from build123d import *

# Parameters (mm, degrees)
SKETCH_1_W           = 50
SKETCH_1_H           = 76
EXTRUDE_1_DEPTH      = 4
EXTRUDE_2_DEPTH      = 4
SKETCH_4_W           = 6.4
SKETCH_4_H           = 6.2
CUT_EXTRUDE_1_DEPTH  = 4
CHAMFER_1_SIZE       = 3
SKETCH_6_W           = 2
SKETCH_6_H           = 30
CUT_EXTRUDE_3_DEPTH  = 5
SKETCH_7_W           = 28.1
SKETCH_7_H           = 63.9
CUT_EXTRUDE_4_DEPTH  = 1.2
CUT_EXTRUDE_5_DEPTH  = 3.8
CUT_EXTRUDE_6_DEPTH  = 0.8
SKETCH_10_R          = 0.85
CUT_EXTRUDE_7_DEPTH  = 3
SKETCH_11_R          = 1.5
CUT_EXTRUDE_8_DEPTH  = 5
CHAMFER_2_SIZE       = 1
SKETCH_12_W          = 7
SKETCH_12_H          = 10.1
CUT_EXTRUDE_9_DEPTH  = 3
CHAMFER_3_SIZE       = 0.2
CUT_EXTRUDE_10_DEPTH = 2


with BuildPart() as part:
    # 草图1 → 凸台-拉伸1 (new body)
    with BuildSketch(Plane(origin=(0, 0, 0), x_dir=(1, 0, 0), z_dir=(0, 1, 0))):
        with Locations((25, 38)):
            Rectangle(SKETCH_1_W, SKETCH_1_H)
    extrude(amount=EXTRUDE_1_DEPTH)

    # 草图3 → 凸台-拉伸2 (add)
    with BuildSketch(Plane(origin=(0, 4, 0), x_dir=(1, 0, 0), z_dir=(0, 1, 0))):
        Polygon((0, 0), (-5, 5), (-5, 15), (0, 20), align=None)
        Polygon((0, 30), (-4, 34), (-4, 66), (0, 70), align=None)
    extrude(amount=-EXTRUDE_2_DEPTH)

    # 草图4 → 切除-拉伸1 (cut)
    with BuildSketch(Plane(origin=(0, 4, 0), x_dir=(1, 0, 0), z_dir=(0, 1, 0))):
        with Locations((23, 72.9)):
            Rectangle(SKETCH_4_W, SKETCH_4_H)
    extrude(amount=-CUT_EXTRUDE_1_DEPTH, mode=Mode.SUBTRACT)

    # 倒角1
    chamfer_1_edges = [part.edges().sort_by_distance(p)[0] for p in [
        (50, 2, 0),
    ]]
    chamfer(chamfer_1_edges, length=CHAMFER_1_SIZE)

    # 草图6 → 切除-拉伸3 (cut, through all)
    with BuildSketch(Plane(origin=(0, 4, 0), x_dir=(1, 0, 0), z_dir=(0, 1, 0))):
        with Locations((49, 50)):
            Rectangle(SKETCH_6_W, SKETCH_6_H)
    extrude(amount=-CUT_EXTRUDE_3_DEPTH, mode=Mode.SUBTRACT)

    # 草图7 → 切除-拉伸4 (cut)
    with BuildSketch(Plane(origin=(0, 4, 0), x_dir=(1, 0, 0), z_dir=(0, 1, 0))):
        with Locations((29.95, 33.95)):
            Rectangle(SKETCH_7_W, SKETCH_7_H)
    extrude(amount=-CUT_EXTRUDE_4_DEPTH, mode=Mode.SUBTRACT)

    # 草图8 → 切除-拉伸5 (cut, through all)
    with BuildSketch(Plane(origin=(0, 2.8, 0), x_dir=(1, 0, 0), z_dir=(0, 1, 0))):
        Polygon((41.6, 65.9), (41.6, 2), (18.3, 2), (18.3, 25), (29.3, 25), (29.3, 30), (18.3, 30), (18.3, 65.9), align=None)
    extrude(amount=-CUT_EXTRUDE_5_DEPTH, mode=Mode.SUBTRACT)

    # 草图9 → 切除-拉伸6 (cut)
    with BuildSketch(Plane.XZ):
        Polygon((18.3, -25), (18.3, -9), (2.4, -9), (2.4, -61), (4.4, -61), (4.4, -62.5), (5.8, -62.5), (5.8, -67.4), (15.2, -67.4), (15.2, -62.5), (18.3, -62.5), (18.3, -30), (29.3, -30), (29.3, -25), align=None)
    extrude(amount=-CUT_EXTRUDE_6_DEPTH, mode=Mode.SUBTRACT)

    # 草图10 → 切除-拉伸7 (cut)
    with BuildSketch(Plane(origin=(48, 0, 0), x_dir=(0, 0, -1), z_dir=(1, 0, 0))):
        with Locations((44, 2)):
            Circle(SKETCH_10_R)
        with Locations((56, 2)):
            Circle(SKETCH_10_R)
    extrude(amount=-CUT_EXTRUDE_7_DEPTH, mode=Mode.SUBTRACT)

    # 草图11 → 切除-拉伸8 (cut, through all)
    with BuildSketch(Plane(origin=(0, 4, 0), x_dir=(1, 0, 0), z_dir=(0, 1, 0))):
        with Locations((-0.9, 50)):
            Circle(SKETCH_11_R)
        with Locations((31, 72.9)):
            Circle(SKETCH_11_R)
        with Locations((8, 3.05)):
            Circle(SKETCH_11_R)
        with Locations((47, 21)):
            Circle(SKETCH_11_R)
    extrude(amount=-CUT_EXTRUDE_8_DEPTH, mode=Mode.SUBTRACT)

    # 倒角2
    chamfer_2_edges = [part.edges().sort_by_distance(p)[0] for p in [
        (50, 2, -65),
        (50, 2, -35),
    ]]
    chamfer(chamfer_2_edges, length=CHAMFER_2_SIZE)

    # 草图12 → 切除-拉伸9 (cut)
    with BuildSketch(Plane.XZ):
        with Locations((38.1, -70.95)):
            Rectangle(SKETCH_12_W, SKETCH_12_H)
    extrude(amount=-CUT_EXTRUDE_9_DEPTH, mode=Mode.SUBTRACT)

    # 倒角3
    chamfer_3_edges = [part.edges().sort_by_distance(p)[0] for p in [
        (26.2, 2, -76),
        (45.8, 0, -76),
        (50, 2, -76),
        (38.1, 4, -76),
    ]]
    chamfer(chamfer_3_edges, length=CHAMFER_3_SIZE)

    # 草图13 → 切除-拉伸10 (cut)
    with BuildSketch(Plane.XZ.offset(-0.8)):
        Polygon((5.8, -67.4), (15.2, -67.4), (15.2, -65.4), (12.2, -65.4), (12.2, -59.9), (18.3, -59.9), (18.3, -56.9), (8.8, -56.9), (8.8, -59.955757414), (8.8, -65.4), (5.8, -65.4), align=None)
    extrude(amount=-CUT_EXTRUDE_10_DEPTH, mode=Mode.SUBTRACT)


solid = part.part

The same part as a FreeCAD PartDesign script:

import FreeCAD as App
import Part
import Sketcher
from FreeCAD import Vector
Q = App.Units.Quantity


def edges_at(feature, points):
    """Names of the edges that pass closest to the given points."""
    edges = feature.Shape.Edges
    near = lambda p: min(range(len(edges)), key=lambda i: edges[i].distToShape(Part.Vertex(*p))[0])
    return sorted({f"Edge{near(p) + 1}" for p in points})


def add_polygon(sketch, points):
    """Adds a closed chain of lines whose ends are joined by coincident constraints."""
    first, n = sketch.GeometryCount, len(points)
    for a, b in zip(points, points[1:] + points[:1]):
        sketch.addGeometry(Part.LineSegment(App.Vector(*a, 0), App.Vector(*b, 0)), False)
    for i in range(n):
        sketch.addConstraint(Sketcher.Constraint("Coincident", first + i, 2, first + (i + 1) % n, 1))

doc = App.newDocument("Part")
body = doc.addObject("PartDesign::Body", "Body")

# Sketch on XZ plane
sketch1 = body.newObject("Sketcher::SketchObject", "Sketch")
sketch1.AttachmentSupport = (doc.getObject("XZ_Plane"), [""])
sketch1.MapMode = "FlatFace"
add_polygon(sketch1, [(0, -76), (0, 0), (50, 0), (50, -76)])  # lines 0-3
sketch1.addConstraint([
    Sketcher.Constraint("Vertical", 0),
    Sketcher.Constraint("Horizontal", 1),
    Sketcher.Constraint("Vertical", 2),
    Sketcher.Constraint("Horizontal", 3),
    Sketcher.Constraint("Coincident", 0, 2, -1, 1),
    Sketcher.Constraint("DistanceX", 1, 1, 1, 2, Q("50 mm")),
    Sketcher.Constraint("DistanceY", 0, 1, 0, 2, Q("76 mm")),
])
pad1 = body.newObject("PartDesign::Pad", "Pad")
pad1.Profile = sketch1
pad1.Length = 4
pad1.Reversed = True

# Sketch on XZ plane
sketch2 = body.newObject("Sketcher::SketchObject", "Sketch001")
sketch2.AttachmentSupport = (doc.getObject("XZ_Plane"), [""])
sketch2.MapMode = "FlatFace"
sketch2.AttachmentOffset = App.Placement(Vector(0, 0, -4), App.Rotation())
add_polygon(sketch2, [(-5, -5), (0, 0), (0, -20), (-5, -15)])  # lines 0-3
add_polygon(sketch2, [(-4, -34), (0, -30), (0, -70), (-4, -66)])  # lines 4-7
sketch2.addConstraint([
    Sketcher.Constraint("Vertical", 1),
    Sketcher.Constraint("Vertical", 3),
    Sketcher.Constraint("Vertical", 5),
    Sketcher.Constraint("Vertical", 7),
    Sketcher.Constraint("Coincident", 0, 2, -1, 1),
    Sketcher.Constraint("PointOnObject", 4, 2, -2),
    Sketcher.Constraint("Perpendicular", 0, 2),
    Sketcher.Constraint("Perpendicular", 2, 4),
    Sketcher.Constraint("Perpendicular", 4, 6),
    Sketcher.Constraint("Equal", 0, 2),
    Sketcher.Constraint("DistanceY", 1, 2, 1, 1, Q("20 mm")),
    Sketcher.Constraint("DistanceY", 3, 1, 3, 2, Q("10 mm")),
    Sketcher.Constraint("DistanceY", 5, 2, 5, 1, Q("40 mm")),
    Sketcher.Constraint("DistanceY", 7, 1, 7, 2, Q("32 mm")),
    Sketcher.Constraint("DistanceY", 4, 2, -1, 1, Q("30 mm")),
])
pad2 = body.newObject("PartDesign::Pad", "Pad001")
pad2.Profile = sketch2
pad2.Length = 4

# Sketch on XZ plane
sketch3 = body.newObject("Sketcher::SketchObject", "Sketch002")
sketch3.AttachmentSupport = (doc.getObject("XZ_Plane"), [""])
sketch3.MapMode = "FlatFace"
sketch3.AttachmentOffset = App.Placement(Vector(0, 0, -4), App.Rotation())
add_polygon(sketch3, [(20, -76), (20, -70), (26, -70), (26, -76)])  # lines 0-3
sketch3.addConstraint([
    Sketcher.Constraint("Vertical", 0),
    Sketcher.Constraint("Horizontal", 1),
    Sketcher.Constraint("Vertical", 2),
    Sketcher.Constraint("Horizontal", 3),
    Sketcher.Constraint("DistanceX", 1, 1, 1, 2, Q("6.4 mm")),
    Sketcher.Constraint("DistanceY", 0, 1, 0, 2, Q("6.2 mm")),
    Sketcher.Constraint("DistanceY", 2, 2, -1, 1, Q("76 mm")),
    Sketcher.Constraint("DistanceX", -1, 1, 0, 2, Q("19.8 mm")),
])
pocket1 = body.newObject("PartDesign::Pocket", "Pocket")
pocket1.Profile = sketch3
pocket1.Length = 4
pocket1.Reversed = True
doc.recompute()

chamfer = body.newObject("PartDesign::Chamfer", "Chamfer")
chamfer.Base = (pocket1, edges_at(pocket1, [(50, 2, 0)]))
chamfer.Size = 3

# Sketch on XZ plane
sketch4 = body.newObject("Sketcher::SketchObject", "Sketch003")
sketch4.AttachmentSupport = (doc.getObject("XZ_Plane"), [""])
sketch4.MapMode = "FlatFace"
sketch4.AttachmentOffset = App.Placement(Vector(0, 0, -4), App.Rotation())
add_polygon(sketch4, [(48, -65), (48, -35), (50, -35), (50, -65)])  # lines 0-3
sketch4.addConstraint([
    Sketcher.Constraint("Vertical", 0),
    Sketcher.Constraint("Horizontal", 1),
    Sketcher.Constraint("Vertical", 2),
    Sketcher.Constraint("Horizontal", 3),
    Sketcher.Constraint("DistanceX", 1, 1, 1, 2, Q("2 mm")),
    Sketcher.Constraint("DistanceY", 0, 1, 0, 2, Q("30 mm")),
    Sketcher.Constraint("DistanceX", -1, 1, 0, 2, Q("48 mm")),
    Sketcher.Constraint("DistanceY", 0, 2, -1, 1, Q("35 mm")),
])
pocket2 = body.newObject("PartDesign::Pocket", "Pocket001")
pocket2.Profile = sketch4
pocket2.Type = "ThroughAll"
pocket2.Reversed = True

# Sketch on XZ plane
sketch5 = body.newObject("Sketcher::SketchObject", "Sketch004")
sketch5.AttachmentSupport = (doc.getObject("XZ_Plane"), [""])
sketch5.MapMode = "FlatFace"
sketch5.AttachmentOffset = App.Placement(Vector(0, 0, -4), App.Rotation())
add_polygon(sketch5, [(16, -66), (16, -2), (44, -2), (44, -66)])  # lines 0-3
sketch5.addConstraint([
    Sketcher.Constraint("Vertical", 0),
    Sketcher.Constraint("Horizontal", 1),
    Sketcher.Constraint("Vertical", 2),
    Sketcher.Constraint("Horizontal", 3),
    Sketcher.Constraint("DistanceX", 1, 1, 1, 2, Q("28.1 mm")),
    Sketcher.Constraint("DistanceY", 0, 1, 0, 2, Q("63.9 mm")),
    Sketcher.Constraint("DistanceY", 0, 2, -1, 1, Q("2 mm")),
    Sketcher.Constraint("DistanceX", -1, 1, 1, 2, Q("44 mm")),
])
pocket3 = body.newObject("PartDesign::Pocket", "Pocket002")
pocket3.Profile = sketch5
pocket3.Length = 1.2
pocket3.Reversed = True

# Sketch on XZ plane
sketch6 = body.newObject("Sketcher::SketchObject", "Sketch005")
sketch6.AttachmentSupport = (doc.getObject("XZ_Plane"), [""])
sketch6.MapMode = "FlatFace"
sketch6.AttachmentOffset = App.Placement(Vector(0, 0, -2.8), App.Rotation())
add_polygon(sketch6, [(42, -2), (42, -66), (18, -66), (18, -30), (29, -30), (29, -25), (18, -25), (18, -2)])  # lines 0-7
sketch6.addConstraint([
    Sketcher.Constraint("Vertical", 0),
    Sketcher.Constraint("Horizontal", 1),
    Sketcher.Constraint("Vertical", 2),
    Sketcher.Constraint("Horizontal", 3),
    Sketcher.Constraint("Vertical", 4),
    Sketcher.Constraint("Horizontal", 5),
    Sketcher.Constraint("Vertical", 6),
    Sketcher.Constraint("Horizontal", 7),
    Sketcher.Constraint("Vertical", 2, 2, 5, 2),
    Sketcher.Constraint("DistanceX", 3, 1, 3, 2, Q("11 mm")),
    Sketcher.Constraint("DistanceY", 4, 1, 4, 2, Q("5 mm")),
    Sketcher.Constraint("DistanceY", 6, 1, 6, 2, Q("23 mm")),
    Sketcher.Constraint("DistanceX", 1, 2, 1, 1, Q("23.3 mm")),
    Sketcher.Constraint("DistanceY", 0, 2, 0, 1, Q("63.9 mm")),
    Sketcher.Constraint("DistanceY", 2, 2, -1, 1, Q("30 mm")),
    Sketcher.Constraint("DistanceX", -1, 1, 0, 2, Q("41.6 mm")),
])
pocket4 = body.newObject("PartDesign::Pocket", "Pocket003")
pocket4.Profile = sketch6
pocket4.Type = "ThroughAll"
pocket4.Reversed = True

# Sketch on XZ plane
sketch7 = body.newObject("Sketcher::SketchObject", "Sketch006")
sketch7.AttachmentSupport = (doc.getObject("XZ_Plane"), [""])
sketch7.MapMode = "FlatFace"
add_polygon(sketch7, [(18.3, -25), (18.3, -9), (2.4, -9), (2.4, -61), (4.4, -61), (4.4, -62.5), (5.8, -62.5), (5.8, -67.4), (15.2, -67.4), (15.2, -62.5), (18.3, -62.5), (18.3, -30), (29.3, -30), (29.3, -25)])  # lines 0-13
sketch7.addConstraint([
    Sketcher.Constraint("Vertical", 0),
    Sketcher.Constraint("Horizontal", 1),
    Sketcher.Constraint("Vertical", 2),
    Sketcher.Constraint("Horizontal", 3),
    Sketcher.Constraint("Vertical", 4),
    Sketcher.Constraint("Horizontal", 5),
    Sketcher.Constraint("Vertical", 6),
    Sketcher.Constraint("Horizontal", 7),
    Sketcher.Constraint("Vertical", 8),
    Sketcher.Constraint("Horizontal", 9),
    Sketcher.Constraint("Vertical", 10),
    Sketcher.Constraint("Horizontal", 11),
    Sketcher.Constraint("Vertical", 12),
    Sketcher.Constraint("Horizontal", 13),
    Sketcher.Constraint("Horizontal", 5, 2, 8, 2),
    Sketcher.Constraint("Vertical", 0, 2, 9, 2),
    Sketcher.Constraint("DistanceX", 3, 1, 3, 2, Q("2 mm")),
    Sketcher.Constraint("DistanceX", 11, 1, 11, 2, Q("11 mm")),
    Sketcher.Constraint("DistanceY", 0, 1, 0, 2, Q("16 mm")),
    Sketcher.Constraint("DistanceY", 2, 2, 2, 1, Q("52 mm")),
    Sketcher.Constraint("DistanceY", 12, 1, 12, 2, Q("5 mm")),
    Sketcher.Constraint("DistanceX", 1, 2, 1, 1, Q("15.9 mm")),
    Sketcher.Constraint("DistanceX", 5, 1, 5, 2, Q("1.4 mm")),
    Sketcher.Constraint("DistanceX", 7, 1, 7, 2, Q("9.4 mm")),
    Sketcher.Constraint("DistanceY", 4, 2, 4, 1, Q("1.5 mm")),
    Sketcher.Constraint("DistanceY", 6, 2, 6, 1, Q("4.9 mm")),
    Sketcher.Constraint("DistanceY", 0, 2, -1, 1, Q("9 mm")),
    Sketcher.Constraint("DistanceX", -1, 1, 0, 2, Q("18.3 mm")),
])
pocket5 = body.newObject("PartDesign::Pocket", "Pocket004")
pocket5.Profile = sketch7
pocket5.Length = 0.8

# Sketch on YZ plane
sketch8 = body.newObject("Sketcher::SketchObject", "Sketch007")
sketch8.AttachmentSupport = (doc.getObject("YZ_Plane"), [""])
sketch8.MapMode = "FlatFace"
sketch8.AttachmentOffset = App.Placement(Vector(0, 0, 48), App.Rotation())
sketch8.addGeometry([
    Part.Circle(Vector(2, -44, 0), Vector(0, 0, 1), 0.8),
    Part.Circle(Vector(2, -56, 0), Vector(0, 0, 1), 0.8),
], False)
sketch8.addConstraint([
    Sketcher.Constraint("Equal", 0, 1),
    Sketcher.Constraint("Vertical", 0, 3, 1, 3),
    Sketcher.Constraint("Diameter", 0, Q("1.7 mm")),
    Sketcher.Constraint("DistanceX", -1, 1, 0, 3, Q("2 mm")),
    Sketcher.Constraint("DistanceY", 0, 3, -1, 1, Q("44 mm")),
    Sketcher.Constraint("DistanceY", 1, 3, -1, 1, Q("56 mm")),
])
pocket6 = body.newObject("PartDesign::Pocket", "Pocket005")
pocket6.Profile = sketch8
pocket6.Length = 3

# Sketch on XZ plane
sketch9 = body.newObject("Sketcher::SketchObject", "Sketch008")
sketch9.AttachmentSupport = (doc.getObject("XZ_Plane"), [""])
sketch9.MapMode = "FlatFace"
sketch9.AttachmentOffset = App.Placement(Vector(0, 0, -4), App.Rotation())
sketch9.addGeometry([
    Part.Circle(Vector(-0.9, -50, 0), Vector(0, 0, 1), 1.5),
    Part.Circle(Vector(31, -72.9, 0), Vector(0, 0, 1), 1.5),
    Part.Circle(Vector(8, -3, 0), Vector(0, 0, 1), 1.5),
    Part.Circle(Vector(47, -21, 0), Vector(0, 0, 1), 1.5),
], False)
sketch9.addConstraint([
    Sketcher.Constraint("Equal", 0, 1),
    Sketcher.Constraint("Equal", 1, 2),
    Sketcher.Constraint("Equal", 2, 3),
    Sketcher.Constraint("Diameter", 0, Q("3 mm")),
    Sketcher.Constraint("DistanceY", 0, 3, -1, 1, Q("50 mm")),
    Sketcher.Constraint("DistanceX", -1, 1, 1, 3, Q("31 mm")),
    Sketcher.Constraint("DistanceX", -1, 1, 2, 3, Q("8 mm")),
    Sketcher.Constraint("DistanceX", -1, 1, 3, 3, Q("47 mm")),
    Sketcher.Constraint("DistanceY", 3, 3, -1, 1, Q("21 mm")),
    Sketcher.Constraint("DistanceX", 0, 3, -1, 1, Q("0.9 mm")),
    Sketcher.Constraint("DistanceY", 1, 3, -1, 1, Q("72.9 mm")),
    Sketcher.Constraint("DistanceY", 2, 3, -1, 1, Q("3.05 mm")),
])
pocket7 = body.newObject("PartDesign::Pocket", "Pocket006")
pocket7.Profile = sketch9
pocket7.Type = "ThroughAll"
pocket7.Reversed = True
doc.recompute()

chamfer2 = body.newObject("PartDesign::Chamfer", "Chamfer001")
chamfer2.Base = (pocket7, edges_at(pocket7, [(50, 2, -65), (50, 2, -35)]))
chamfer2.Size = 1

# Sketch on XZ plane
sketch10 = body.newObject("Sketcher::SketchObject", "Sketch009")
sketch10.AttachmentSupport = (doc.getObject("XZ_Plane"), [""])
sketch10.MapMode = "FlatFace"
add_polygon(sketch10, [(35, -66), (35, -76), (42, -76), (42, -66)])  # lines 0-3
sketch10.addConstraint([
    Sketcher.Constraint("Vertical", 0),
    Sketcher.Constraint("Horizontal", 1),
    Sketcher.Constraint("Vertical", 2),
    Sketcher.Constraint("Horizontal", 3),
    Sketcher.Constraint("DistanceX", 1, 1, 1, 2, Q("7 mm")),
    Sketcher.Constraint("DistanceY", 0, 2, 0, 1, Q("10.1 mm")),
    Sketcher.Constraint("DistanceY", 0, 2, -1, 1, Q("76 mm")),
    Sketcher.Constraint("DistanceX", -1, 1, 0, 2, Q("34.6 mm")),
])
pocket8 = body.newObject("PartDesign::Pocket", "Pocket007")
pocket8.Profile = sketch10
pocket8.Length = 3
doc.recompute()

chamfer3 = body.newObject("PartDesign::Chamfer", "Chamfer002")
chamfer3.Base = (pocket8, edges_at(pocket8, [
    (26.2, 2, -76),
    (45.8, 0, -76),
    (50, 2, -76),
    (38.1, 4, -76),
]))
chamfer3.Size = 0.2

# Sketch on XZ plane
sketch11 = body.newObject("Sketcher::SketchObject", "Sketch010")
sketch11.AttachmentSupport = (doc.getObject("XZ_Plane"), [""])
sketch11.MapMode = "FlatFace"
sketch11.AttachmentOffset = App.Placement(Vector(0, 0, -0.8), App.Rotation())
add_polygon(sketch11, [(5.8, -67.4), (15.2, -67.4), (15.2, -65.4), (12.2, -65.4), (12.2, -59.9), (18.3, -59.9), (18.3, -56.9), (8.8, -56.9), (8.8, -65.4), (5.8, -65.4)])  # lines 0-9
sketch11.addConstraint([
    Sketcher.Constraint("Horizontal", 0),
    Sketcher.Constraint("Vertical", 1),
    Sketcher.Constraint("Horizontal", 2),
    Sketcher.Constraint("Vertical", 3),
    Sketcher.Constraint("Horizontal", 4),
    Sketcher.Constraint("Vertical", 5),
    Sketcher.Constraint("Horizontal", 6),
    Sketcher.Constraint("Vertical", 7),
    Sketcher.Constraint("Horizontal", 8),
    Sketcher.Constraint("Vertical", 9),
    Sketcher.Constraint("Horizontal", 2, 2, 7, 2),
    Sketcher.Constraint("Equal", 2, 8),
    Sketcher.Constraint("Equal", 8, 5),
    Sketcher.Constraint("DistanceX", 2, 2, 2, 1, Q("3 mm")),
    Sketcher.Constraint("DistanceY", 1, 1, 1, 2, Q("2 mm")),
    Sketcher.Constraint("DistanceX", 0, 1, 0, 2, Q("9.4 mm")),
    Sketcher.Constraint("DistanceX", 4, 1, 4, 2, Q("6.1 mm")),
    Sketcher.Constraint("DistanceY", 3, 1, 3, 2, Q("5.5 mm")),
    Sketcher.Constraint("DistanceX", -1, 1, 0, 2, Q("15.2 mm")),
    Sketcher.Constraint("DistanceY", 0, 2, -1, 1, Q("67.4 mm")),
])
pocket9 = body.newObject("PartDesign::Pocket", "Pocket008")
pocket9.Profile = sketch11
pocket9.Length = 2

doc.recompute()
